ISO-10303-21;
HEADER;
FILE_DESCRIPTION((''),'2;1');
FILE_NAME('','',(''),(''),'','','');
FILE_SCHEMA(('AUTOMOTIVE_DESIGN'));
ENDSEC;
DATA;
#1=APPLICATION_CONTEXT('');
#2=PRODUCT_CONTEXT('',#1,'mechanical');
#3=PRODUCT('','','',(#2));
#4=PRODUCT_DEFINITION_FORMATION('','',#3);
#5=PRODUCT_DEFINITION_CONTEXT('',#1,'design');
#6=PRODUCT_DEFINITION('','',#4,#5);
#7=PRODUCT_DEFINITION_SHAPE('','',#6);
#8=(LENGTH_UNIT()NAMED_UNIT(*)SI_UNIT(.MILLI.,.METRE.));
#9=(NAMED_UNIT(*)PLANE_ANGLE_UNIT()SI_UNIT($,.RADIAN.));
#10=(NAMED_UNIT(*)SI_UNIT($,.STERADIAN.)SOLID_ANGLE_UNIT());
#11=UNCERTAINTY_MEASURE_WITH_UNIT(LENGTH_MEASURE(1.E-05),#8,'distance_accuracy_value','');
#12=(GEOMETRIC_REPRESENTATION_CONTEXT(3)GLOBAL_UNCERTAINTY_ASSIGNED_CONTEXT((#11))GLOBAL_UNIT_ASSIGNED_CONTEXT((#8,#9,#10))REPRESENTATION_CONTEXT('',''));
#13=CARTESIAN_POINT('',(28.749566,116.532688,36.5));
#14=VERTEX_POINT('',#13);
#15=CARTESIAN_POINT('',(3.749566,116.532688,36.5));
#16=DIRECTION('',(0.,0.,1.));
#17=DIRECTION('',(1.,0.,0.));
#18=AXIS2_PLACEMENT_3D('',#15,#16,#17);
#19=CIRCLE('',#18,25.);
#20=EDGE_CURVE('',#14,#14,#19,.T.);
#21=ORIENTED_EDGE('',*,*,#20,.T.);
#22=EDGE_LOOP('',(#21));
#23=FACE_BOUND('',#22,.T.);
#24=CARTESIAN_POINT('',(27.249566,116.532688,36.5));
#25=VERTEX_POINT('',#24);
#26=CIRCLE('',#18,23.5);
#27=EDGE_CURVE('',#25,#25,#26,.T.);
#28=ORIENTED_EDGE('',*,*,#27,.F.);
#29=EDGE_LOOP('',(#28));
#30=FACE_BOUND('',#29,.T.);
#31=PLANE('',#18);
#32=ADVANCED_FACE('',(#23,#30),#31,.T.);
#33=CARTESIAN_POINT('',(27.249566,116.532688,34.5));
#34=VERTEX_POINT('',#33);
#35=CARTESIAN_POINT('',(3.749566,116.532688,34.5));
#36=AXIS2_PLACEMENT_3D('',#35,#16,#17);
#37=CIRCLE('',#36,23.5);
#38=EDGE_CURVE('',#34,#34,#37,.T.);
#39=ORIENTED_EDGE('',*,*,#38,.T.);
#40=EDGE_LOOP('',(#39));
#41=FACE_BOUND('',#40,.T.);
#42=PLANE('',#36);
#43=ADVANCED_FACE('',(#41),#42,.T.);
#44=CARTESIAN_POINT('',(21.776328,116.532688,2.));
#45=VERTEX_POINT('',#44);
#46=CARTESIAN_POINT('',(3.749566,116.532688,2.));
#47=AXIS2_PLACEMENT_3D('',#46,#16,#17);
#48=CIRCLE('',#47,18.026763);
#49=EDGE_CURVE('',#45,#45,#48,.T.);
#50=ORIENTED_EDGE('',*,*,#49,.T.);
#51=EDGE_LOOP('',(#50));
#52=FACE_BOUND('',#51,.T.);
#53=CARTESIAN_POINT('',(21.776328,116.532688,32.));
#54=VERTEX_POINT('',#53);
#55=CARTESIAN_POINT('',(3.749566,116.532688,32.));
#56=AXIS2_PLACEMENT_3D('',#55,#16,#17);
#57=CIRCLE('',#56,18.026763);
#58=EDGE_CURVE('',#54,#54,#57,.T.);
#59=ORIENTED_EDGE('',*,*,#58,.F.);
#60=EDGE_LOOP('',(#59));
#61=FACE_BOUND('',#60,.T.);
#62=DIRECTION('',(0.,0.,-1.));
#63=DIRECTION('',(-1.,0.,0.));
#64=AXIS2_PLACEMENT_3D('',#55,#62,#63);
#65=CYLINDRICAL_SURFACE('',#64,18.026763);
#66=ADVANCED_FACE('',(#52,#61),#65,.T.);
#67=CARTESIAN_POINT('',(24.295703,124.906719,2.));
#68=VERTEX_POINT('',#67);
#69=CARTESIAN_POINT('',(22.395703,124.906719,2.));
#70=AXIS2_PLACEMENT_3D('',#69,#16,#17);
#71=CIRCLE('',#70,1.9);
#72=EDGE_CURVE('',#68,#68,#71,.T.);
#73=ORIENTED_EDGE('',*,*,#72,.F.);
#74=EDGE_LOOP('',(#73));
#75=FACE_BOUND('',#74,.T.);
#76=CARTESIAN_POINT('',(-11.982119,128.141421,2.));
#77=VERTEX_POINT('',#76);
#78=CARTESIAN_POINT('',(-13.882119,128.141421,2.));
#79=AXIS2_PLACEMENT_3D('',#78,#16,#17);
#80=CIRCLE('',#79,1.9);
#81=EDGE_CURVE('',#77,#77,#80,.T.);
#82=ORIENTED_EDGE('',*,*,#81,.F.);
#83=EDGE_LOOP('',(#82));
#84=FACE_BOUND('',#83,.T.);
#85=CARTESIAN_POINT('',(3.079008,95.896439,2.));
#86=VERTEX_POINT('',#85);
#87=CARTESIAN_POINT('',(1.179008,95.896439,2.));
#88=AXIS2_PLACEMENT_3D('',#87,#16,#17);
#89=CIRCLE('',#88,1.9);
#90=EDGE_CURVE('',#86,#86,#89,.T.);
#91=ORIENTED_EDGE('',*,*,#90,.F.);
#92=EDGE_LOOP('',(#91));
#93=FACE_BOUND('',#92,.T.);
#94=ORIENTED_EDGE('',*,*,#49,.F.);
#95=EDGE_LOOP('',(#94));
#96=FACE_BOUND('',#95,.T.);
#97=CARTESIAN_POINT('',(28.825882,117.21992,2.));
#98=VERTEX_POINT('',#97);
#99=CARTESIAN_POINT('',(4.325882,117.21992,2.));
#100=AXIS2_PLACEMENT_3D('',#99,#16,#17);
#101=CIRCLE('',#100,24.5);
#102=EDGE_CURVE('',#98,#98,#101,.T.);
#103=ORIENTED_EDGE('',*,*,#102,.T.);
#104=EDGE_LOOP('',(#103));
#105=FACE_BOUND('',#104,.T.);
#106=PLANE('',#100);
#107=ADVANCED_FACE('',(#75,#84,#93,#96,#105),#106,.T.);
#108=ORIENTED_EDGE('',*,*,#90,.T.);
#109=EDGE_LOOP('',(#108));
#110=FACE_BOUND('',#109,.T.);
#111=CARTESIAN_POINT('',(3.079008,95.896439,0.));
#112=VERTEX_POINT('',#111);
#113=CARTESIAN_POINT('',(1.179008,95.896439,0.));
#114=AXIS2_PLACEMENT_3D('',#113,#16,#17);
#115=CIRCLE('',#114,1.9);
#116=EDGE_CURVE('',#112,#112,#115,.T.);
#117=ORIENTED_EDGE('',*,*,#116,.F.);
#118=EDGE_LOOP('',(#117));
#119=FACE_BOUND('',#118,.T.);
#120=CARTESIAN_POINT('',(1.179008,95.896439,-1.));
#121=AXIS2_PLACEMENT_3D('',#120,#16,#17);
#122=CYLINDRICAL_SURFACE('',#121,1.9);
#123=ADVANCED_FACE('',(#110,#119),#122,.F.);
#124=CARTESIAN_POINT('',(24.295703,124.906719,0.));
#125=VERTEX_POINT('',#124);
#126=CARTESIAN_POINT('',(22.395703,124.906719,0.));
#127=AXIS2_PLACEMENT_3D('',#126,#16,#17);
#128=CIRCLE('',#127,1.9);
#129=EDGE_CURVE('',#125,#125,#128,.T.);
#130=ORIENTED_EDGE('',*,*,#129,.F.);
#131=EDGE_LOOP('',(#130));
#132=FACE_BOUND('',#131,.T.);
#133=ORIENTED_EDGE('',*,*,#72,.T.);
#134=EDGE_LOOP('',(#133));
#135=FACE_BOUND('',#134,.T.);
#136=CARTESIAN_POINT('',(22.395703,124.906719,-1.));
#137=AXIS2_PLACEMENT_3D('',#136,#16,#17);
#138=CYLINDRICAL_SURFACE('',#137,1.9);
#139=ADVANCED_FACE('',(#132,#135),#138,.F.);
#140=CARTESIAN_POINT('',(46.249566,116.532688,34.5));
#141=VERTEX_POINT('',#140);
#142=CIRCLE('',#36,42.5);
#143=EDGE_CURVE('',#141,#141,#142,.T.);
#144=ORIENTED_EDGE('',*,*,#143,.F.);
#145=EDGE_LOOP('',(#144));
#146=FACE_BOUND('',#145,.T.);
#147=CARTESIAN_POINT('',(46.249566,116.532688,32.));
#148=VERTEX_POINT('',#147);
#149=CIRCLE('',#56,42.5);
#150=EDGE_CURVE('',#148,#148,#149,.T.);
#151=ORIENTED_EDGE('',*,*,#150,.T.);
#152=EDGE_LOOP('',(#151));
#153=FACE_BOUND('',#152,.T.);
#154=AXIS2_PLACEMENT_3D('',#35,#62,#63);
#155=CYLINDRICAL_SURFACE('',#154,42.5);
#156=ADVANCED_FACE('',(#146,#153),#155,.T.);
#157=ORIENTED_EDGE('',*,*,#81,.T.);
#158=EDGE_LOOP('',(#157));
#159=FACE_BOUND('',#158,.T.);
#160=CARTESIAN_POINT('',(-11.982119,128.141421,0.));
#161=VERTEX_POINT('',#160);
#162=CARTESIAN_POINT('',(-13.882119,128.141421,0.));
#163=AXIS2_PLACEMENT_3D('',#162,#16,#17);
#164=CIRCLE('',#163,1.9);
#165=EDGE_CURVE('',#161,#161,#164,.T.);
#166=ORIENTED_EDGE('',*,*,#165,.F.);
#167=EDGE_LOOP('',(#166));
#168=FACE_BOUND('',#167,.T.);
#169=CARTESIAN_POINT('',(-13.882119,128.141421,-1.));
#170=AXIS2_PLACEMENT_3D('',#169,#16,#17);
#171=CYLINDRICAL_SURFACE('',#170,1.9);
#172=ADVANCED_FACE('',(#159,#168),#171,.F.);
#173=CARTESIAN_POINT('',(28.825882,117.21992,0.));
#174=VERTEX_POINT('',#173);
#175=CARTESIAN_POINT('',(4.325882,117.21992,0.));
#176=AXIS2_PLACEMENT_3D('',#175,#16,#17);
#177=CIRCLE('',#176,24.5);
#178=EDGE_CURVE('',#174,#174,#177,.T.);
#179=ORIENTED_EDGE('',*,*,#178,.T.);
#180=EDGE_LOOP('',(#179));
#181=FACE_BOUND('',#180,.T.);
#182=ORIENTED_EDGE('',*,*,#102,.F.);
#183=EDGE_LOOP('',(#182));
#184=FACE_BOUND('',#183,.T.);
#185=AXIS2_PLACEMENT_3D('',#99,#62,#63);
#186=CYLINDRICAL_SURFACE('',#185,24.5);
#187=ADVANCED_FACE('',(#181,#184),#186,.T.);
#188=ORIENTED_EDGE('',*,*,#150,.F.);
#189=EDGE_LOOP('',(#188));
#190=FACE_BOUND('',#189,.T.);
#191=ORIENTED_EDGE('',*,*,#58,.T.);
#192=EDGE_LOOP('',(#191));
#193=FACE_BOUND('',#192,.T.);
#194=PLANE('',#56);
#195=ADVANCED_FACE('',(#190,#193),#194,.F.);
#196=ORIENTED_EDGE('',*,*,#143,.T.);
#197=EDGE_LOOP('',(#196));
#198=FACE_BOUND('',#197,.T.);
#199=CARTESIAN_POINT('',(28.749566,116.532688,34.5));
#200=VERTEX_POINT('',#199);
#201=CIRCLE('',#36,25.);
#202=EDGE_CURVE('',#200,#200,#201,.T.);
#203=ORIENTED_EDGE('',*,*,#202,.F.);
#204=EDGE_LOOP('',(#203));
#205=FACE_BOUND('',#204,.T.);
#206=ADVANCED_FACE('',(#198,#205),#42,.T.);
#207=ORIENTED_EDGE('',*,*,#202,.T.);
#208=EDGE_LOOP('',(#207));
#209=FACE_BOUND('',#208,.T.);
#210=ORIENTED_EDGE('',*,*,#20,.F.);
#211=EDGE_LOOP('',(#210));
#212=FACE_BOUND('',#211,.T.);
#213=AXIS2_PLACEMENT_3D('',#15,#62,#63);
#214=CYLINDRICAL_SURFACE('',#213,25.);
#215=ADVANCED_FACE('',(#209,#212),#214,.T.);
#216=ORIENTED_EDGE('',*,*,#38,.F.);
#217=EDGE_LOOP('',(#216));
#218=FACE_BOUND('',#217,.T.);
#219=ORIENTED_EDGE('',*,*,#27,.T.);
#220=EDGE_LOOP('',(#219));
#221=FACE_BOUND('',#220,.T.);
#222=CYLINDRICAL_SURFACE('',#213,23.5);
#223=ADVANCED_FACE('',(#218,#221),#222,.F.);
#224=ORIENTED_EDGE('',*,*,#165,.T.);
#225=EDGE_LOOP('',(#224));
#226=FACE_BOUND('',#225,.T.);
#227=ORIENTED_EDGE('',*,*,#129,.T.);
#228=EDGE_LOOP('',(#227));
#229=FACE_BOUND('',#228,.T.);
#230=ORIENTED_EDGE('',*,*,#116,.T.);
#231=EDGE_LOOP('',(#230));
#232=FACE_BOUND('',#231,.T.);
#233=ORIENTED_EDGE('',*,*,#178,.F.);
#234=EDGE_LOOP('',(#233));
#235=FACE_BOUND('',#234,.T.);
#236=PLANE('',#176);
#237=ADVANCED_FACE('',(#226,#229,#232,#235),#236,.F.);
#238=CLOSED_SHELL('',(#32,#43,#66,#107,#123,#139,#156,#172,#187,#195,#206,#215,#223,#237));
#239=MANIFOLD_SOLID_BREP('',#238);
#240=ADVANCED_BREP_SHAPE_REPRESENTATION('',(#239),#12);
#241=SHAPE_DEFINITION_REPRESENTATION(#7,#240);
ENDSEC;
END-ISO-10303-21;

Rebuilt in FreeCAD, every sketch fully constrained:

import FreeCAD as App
import Part
import Sketcher
from FreeCAD import Vector
Q = App.Units.Quantity

doc = App.newDocument("Part")
body = doc.addObject("PartDesign::Body", "Body")

sketch1 = doc.addObject("Sketcher::SketchObject", "Sketch")
body.addObject(sketch1)
sketch1.AttachmentSupport = (doc.XY_Plane, [""])
sketch1.MapMode = "FlatFace"
sketch1.addGeometry(Part.Circle(Vector(4.325882, 117.21992, 0), Vector(0, 0, 1), 24.5), False)
sketch1.addConstraint([
    Sketcher.Constraint("Diameter", 0, Q("49 mm")),
    Sketcher.Constraint("DistanceY", -1, 1, 0, 3, Q("117.21992 mm")),
    Sketcher.Constraint("DistanceX", -1, 1, 0, 3, Q("4.325882 mm")),
])
pad1 = doc.addObject("PartDesign::Pad", "Pad")
body.addObject(pad1)
pad1.Profile = sketch1
pad1.Length = 2

sketch2 = doc.addObject("Sketcher::SketchObject", "Sketch001")
body.addObject(sketch2)
sketch2.AttachmentSupport = (doc.XY_Plane, [""])
sketch2.MapMode = "FlatFace"
sketch2.AttachmentOffset = App.Placement(Vector(0, 0, 2), App.Rotation())
sketch2.addGeometry([
    Part.Circle(Vector(1.179008, 95.896439, 0), Vector(0, 0, 1), 1.9),
    Part.Circle(Vector(22.395703, 124.906719, 0), Vector(0, 0, 1), 1.9),
    Part.Circle(Vector(-13.882119, 128.141421, 0), Vector(0, 0, 1), 1.9),
], False)
sketch2.addConstraint([
    Sketcher.Constraint("Equal", 0, 1),
    Sketcher.Constraint("Equal", 1, 2),
    Sketcher.Constraint("Diameter", 0, Q("3.8 mm")),
    Sketcher.Constraint("DistanceX", -1, 1, 0, 3, Q("1.179008 mm")),
    Sketcher.Constraint("DistanceY", -1, 1, 0, 3, Q("95.896439 mm")),
    Sketcher.Constraint("DistanceY", -1, 1, 1, 3, Q("124.906719 mm")),
    Sketcher.Constraint("DistanceX", 2, 3, -1, 1, Q("13.882119 mm")),
    Sketcher.Constraint("DistanceY", -1, 1, 2, 3, Q("128.141421 mm")),
    Sketcher.Constraint("DistanceX", 2, 3, 1, 3, Q("36.277822 mm")),
])
pocket1 = doc.addObject("PartDesign::Pocket", "Pocket")
body.addObject(pocket1)
pocket1.Profile = sketch2
pocket1.Length = 3

sketch3 = doc.addObject("Sketcher::SketchObject", "Sketch002")
body.addObject(sketch3)
sketch3.AttachmentSupport = (doc.XY_Plane, [""])
sketch3.MapMode = "FlatFace"
sketch3.AttachmentOffset = App.Placement(Vector(0, 0, 2), App.Rotation())
sketch3.addGeometry(Part.Circle(Vector(3.749566, 116.532688, 0), Vector(0, 0, 1), 18.026763), False)
sketch3.addConstraint([
    Sketcher.Constraint("Diameter", 0, Q("36.053526 mm")),
    Sketcher.Constraint("DistanceX", -1, 1, 0, 3, Q("3.749566 mm")),
    Sketcher.Constraint("DistanceY", -1, 1, 0, 3, Q("116.532688 mm")),
])
pad2 = doc.addObject("PartDesign::Pad", "Pad001")
body.addObject(pad2)
pad2.Profile = sketch3
pad2.Length = 30

sketch4 = doc.addObject("Sketcher::SketchObject", "Sketch003")
body.addObject(sketch4)
sketch4.AttachmentSupport = (doc.XY_Plane, [""])
sketch4.MapMode = "FlatFace"
sketch4.AttachmentOffset = App.Placement(Vector(0, 0, 32), App.Rotation())
sketch4.addGeometry(Part.Circle(Vector(3.749566, 116.532688, 0), Vector(0, 0, 1), 42.5), False)
sketch4.addConstraint([
    Sketcher.Constraint("Diameter", 0, Q("85 mm")),
    Sketcher.Constraint("DistanceX", -1, 1, 0, 3, Q("3.749566 mm")),
    Sketcher.Constraint("DistanceY", -1, 1, 0, 3, Q("116.532688 mm")),
])
pad3 = doc.addObject("PartDesign::Pad", "Pad002")
body.addObject(pad3)
pad3.Profile = sketch4
pad3.Length = 2.5

sketch5 = doc.addObject("Sketcher::SketchObject", "Sketch004")
body.addObject(sketch5)
sketch5.AttachmentSupport = (doc.XY_Plane, [""])
sketch5.MapMode = "FlatFace"
sketch5.AttachmentOffset = App.Placement(Vector(0, 0, 34.5), App.Rotation())
sketch5.addGeometry([
    Part.Circle(Vector(3.749566, 116.532688, 0), Vector(0, 0, 1), 25),
    Part.Circle(Vector(3.749566, 116.532688, 0), Vector(0, 0, 1), 23.5),
], False)
sketch5.addConstraint([
    Sketcher.Constraint("Coincident", 1, 3, 0, 3),
    Sketcher.Constraint("Diameter", 0, Q("50 mm")),
    Sketcher.Constraint("Diameter", 1, Q("47 mm")),
    Sketcher.Constraint("DistanceX", -1, 1, 0, 3, Q("3.749566 mm")),
    Sketcher.Constraint("DistanceY", -1, 1, 0, 3, Q("116.532688 mm")),
])
pad4 = doc.addObject("PartDesign::Pad", "Pad003")
body.addObject(pad4)
pad4.Profile = sketch5
pad4.Length = 2

doc.recompute()
